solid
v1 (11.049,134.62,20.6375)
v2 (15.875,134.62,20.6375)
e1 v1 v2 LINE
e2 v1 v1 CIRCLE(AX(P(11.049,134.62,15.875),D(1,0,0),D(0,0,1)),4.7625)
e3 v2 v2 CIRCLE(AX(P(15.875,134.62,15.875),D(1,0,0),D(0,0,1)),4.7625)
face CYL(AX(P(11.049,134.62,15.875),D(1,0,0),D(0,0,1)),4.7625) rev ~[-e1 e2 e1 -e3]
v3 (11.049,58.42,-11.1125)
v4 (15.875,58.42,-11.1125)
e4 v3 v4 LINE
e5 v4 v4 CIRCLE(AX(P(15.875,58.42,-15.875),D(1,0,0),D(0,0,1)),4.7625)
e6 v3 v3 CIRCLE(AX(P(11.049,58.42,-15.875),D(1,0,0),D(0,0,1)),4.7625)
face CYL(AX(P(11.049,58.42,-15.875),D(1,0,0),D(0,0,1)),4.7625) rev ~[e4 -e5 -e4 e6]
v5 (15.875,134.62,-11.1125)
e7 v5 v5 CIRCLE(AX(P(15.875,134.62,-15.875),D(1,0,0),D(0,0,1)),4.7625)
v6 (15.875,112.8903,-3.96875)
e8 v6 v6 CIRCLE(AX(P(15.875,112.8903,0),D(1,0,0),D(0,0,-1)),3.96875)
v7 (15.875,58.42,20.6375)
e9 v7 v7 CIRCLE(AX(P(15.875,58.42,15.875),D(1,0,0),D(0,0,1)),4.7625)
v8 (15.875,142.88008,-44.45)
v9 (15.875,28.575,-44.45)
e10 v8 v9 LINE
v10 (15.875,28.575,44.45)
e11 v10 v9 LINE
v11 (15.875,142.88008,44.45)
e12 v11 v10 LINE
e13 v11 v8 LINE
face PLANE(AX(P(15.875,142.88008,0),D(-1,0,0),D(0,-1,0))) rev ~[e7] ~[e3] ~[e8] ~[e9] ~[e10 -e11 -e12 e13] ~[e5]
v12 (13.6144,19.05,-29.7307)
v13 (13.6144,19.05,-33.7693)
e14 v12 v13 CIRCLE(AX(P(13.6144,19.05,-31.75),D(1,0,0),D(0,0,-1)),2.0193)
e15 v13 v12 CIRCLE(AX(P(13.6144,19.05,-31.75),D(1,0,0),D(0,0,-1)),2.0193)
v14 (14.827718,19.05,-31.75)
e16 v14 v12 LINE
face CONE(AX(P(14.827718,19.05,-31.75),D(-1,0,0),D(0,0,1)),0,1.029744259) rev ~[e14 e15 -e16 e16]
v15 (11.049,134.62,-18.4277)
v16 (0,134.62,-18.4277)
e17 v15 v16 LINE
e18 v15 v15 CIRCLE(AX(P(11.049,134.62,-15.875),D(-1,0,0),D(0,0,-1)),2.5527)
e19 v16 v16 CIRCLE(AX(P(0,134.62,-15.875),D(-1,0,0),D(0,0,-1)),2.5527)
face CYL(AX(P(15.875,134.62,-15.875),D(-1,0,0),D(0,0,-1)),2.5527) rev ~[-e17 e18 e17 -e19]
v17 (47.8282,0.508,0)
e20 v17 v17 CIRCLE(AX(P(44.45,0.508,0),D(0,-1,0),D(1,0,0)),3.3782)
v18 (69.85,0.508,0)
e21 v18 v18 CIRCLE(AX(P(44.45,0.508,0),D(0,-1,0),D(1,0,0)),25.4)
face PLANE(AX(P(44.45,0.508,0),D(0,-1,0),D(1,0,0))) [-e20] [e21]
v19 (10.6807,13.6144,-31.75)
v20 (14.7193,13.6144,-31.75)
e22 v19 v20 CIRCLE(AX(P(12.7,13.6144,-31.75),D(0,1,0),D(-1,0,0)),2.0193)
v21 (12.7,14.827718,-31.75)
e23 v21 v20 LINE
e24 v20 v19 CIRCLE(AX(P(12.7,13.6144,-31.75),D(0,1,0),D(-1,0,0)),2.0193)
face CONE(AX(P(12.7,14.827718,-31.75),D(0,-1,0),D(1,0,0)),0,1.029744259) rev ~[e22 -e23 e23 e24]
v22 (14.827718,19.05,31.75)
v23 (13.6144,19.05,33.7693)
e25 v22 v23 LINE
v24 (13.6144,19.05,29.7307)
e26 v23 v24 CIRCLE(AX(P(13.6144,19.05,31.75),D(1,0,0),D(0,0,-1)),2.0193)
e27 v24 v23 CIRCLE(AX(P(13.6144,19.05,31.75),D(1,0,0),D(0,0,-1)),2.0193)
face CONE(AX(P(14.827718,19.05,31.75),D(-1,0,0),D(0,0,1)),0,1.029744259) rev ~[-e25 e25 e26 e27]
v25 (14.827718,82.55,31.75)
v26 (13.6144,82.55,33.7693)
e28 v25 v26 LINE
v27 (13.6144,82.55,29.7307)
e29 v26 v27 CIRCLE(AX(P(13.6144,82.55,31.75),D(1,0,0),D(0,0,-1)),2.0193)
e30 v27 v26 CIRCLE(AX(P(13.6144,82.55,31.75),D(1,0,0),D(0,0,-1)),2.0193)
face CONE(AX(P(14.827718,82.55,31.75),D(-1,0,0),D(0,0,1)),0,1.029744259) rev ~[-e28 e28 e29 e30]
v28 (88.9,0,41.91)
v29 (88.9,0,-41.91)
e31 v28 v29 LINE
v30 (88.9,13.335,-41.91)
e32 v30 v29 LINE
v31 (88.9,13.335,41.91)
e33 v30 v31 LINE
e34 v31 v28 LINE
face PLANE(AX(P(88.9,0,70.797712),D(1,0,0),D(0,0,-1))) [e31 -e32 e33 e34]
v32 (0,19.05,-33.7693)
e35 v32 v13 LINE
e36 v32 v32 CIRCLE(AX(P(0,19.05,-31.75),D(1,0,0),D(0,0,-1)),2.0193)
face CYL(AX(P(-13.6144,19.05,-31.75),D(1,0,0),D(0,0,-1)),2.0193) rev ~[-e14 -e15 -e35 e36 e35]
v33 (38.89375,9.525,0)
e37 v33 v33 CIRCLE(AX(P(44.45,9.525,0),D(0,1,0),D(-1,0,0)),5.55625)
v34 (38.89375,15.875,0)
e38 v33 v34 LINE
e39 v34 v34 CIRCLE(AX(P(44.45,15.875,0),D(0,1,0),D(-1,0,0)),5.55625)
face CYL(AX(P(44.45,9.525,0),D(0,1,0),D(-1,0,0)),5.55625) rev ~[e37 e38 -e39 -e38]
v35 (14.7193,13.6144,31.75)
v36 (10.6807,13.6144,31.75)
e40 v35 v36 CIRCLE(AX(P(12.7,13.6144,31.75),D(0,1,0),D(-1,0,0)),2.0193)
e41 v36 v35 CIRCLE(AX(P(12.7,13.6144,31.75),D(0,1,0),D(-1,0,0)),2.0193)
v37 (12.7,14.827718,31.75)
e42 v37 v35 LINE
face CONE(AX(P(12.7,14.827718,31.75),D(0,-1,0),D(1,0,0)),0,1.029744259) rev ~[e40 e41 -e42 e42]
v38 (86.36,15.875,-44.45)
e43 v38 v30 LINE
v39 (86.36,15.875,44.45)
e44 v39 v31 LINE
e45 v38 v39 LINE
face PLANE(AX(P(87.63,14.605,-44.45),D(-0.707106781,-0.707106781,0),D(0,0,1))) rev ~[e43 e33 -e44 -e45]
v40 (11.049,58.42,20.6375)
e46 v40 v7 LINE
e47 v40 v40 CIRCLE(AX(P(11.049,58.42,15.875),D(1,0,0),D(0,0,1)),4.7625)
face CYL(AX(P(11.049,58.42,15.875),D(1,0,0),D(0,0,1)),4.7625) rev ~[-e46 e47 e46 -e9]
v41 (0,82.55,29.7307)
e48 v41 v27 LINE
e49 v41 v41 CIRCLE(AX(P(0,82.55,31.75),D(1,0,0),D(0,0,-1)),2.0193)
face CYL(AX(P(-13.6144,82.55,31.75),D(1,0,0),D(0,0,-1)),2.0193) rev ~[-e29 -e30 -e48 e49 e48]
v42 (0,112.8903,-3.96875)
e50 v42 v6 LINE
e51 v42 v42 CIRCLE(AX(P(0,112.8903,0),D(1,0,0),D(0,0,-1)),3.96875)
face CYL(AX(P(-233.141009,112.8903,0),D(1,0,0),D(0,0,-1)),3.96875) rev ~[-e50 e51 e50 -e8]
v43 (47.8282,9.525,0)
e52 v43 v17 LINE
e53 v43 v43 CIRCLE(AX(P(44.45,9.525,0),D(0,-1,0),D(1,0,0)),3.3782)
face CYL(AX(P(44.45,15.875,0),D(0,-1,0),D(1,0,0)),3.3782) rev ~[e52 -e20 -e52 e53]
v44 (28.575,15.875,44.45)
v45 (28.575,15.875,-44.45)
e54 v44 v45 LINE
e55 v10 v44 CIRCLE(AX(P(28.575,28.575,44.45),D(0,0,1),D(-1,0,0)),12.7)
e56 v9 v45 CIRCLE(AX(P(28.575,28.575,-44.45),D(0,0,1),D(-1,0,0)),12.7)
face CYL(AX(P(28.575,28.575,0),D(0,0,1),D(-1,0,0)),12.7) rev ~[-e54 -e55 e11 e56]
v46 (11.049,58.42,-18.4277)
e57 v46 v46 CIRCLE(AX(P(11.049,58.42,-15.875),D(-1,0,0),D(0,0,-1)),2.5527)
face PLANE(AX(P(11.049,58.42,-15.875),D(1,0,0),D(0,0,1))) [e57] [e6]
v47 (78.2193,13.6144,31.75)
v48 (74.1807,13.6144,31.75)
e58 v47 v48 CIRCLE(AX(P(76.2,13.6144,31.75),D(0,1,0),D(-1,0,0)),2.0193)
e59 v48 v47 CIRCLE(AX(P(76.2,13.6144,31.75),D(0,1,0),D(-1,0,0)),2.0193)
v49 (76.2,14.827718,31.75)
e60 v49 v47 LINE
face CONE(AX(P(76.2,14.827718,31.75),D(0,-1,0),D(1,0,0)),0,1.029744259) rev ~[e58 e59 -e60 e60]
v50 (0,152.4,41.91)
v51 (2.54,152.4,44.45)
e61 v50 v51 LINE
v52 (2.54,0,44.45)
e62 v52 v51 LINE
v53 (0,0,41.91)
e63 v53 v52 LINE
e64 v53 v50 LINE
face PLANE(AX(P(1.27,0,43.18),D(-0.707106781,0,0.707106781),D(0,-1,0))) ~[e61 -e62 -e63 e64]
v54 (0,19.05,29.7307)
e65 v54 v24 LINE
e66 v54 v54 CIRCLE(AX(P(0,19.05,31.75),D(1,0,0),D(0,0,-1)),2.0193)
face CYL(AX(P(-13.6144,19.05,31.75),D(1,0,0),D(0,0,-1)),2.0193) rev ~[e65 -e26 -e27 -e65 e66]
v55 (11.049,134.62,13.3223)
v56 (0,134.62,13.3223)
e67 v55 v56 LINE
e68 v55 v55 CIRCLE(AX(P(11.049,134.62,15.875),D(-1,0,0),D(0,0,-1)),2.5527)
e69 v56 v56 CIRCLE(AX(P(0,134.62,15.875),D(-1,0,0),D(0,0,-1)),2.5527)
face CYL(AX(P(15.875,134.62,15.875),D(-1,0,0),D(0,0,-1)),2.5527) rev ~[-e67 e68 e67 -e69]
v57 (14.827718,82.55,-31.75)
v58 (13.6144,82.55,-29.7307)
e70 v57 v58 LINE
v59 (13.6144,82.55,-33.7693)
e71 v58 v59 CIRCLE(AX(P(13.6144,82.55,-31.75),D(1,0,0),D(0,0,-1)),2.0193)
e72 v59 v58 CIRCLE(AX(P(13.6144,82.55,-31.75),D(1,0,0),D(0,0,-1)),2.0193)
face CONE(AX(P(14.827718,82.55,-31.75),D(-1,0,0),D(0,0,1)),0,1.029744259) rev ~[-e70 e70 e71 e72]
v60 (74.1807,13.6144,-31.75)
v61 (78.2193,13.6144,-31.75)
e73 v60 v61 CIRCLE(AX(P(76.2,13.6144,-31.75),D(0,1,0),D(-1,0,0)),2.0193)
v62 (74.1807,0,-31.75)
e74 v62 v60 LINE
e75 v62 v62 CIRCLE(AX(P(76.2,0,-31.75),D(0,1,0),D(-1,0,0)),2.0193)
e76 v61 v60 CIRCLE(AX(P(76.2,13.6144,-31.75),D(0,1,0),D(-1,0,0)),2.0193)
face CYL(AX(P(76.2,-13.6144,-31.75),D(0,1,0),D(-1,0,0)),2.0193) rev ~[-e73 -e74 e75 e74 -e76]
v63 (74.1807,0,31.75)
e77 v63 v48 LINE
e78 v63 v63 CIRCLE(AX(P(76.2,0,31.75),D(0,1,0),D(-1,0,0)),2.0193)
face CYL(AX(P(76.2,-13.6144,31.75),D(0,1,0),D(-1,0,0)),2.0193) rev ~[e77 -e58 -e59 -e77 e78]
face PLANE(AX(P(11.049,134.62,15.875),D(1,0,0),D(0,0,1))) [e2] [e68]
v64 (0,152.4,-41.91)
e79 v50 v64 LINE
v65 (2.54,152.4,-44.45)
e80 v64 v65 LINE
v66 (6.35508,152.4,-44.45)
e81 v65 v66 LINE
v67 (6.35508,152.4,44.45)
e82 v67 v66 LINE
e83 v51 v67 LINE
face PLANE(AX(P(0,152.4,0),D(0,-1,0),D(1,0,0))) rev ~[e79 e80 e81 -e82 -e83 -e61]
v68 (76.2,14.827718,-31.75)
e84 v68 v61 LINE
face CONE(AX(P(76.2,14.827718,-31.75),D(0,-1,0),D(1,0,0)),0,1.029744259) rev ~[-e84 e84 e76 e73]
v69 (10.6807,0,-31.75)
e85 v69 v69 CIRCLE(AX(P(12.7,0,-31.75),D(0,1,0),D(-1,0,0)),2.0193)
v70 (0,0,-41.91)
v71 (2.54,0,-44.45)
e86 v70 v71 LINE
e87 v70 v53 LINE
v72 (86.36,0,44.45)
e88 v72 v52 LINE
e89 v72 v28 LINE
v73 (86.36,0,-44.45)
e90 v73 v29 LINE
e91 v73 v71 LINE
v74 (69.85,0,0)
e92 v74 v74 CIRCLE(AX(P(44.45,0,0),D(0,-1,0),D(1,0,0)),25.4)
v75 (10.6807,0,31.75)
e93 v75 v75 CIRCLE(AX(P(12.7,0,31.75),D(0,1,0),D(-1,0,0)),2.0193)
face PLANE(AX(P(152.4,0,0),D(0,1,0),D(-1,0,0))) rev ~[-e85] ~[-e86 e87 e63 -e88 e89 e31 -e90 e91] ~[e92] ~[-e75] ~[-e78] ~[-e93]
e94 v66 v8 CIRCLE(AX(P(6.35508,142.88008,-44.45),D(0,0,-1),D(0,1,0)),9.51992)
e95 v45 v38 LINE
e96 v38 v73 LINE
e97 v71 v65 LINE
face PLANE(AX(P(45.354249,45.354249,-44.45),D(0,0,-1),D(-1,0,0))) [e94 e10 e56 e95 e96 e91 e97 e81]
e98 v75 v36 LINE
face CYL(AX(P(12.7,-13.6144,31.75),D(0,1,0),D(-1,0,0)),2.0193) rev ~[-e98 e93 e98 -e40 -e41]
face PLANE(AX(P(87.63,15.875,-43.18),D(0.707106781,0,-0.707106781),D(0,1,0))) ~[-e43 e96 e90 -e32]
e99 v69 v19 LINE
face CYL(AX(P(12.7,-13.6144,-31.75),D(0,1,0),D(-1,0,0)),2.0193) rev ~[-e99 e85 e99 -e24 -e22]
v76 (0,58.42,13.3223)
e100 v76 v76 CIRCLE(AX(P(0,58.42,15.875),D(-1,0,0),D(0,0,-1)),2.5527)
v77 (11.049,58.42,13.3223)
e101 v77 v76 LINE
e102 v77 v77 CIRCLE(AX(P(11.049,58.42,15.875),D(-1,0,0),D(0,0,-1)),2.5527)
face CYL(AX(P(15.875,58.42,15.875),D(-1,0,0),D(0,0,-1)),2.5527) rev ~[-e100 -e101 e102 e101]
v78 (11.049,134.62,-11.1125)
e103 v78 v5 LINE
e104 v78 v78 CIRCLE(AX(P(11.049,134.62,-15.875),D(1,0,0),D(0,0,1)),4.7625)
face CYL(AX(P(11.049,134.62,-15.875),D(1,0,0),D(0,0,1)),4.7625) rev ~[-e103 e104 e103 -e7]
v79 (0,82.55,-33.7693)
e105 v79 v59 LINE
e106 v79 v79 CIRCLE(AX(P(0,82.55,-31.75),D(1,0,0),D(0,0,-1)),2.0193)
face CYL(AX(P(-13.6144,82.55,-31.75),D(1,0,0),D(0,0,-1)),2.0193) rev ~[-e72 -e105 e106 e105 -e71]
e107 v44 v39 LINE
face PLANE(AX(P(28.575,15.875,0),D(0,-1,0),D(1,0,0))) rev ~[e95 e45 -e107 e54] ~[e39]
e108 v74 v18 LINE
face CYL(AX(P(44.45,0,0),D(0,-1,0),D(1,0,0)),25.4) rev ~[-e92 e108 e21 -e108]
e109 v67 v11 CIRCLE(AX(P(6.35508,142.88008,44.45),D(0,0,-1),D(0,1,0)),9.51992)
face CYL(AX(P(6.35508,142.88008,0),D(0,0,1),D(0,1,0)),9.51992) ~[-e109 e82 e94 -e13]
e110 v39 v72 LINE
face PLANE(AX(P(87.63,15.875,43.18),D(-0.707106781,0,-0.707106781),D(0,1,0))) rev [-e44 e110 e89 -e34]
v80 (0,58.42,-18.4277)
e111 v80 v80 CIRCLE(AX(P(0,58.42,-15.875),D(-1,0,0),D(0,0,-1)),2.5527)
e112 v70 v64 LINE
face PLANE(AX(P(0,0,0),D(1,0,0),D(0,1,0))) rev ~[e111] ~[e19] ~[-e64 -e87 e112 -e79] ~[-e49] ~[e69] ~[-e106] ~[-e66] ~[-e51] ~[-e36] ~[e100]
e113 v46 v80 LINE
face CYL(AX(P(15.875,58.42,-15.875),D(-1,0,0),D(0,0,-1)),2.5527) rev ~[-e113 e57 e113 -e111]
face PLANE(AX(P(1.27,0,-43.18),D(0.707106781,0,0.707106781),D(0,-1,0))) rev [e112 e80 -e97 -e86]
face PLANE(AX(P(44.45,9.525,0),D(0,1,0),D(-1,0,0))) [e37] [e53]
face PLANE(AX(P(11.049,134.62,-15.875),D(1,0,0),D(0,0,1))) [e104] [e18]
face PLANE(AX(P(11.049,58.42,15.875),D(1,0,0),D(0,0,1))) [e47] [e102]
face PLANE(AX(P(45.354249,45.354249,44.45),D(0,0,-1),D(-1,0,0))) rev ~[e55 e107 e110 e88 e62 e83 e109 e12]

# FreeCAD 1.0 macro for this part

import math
import FreeCAD as App
import Part
import Sketcher
from FreeCAD import Vector
Q = App.Units.Quantity


def edges_at(feature, points):
    """Names of the edges that pass closest to the given points."""
    edges = feature.Shape.Edges
    near = lambda p: min(range(len(edges)), key=lambda i: edges[i].distToShape(Part.Vertex(*p))[0])
    return sorted({f"Edge{near(p) + 1}" for p in points})

doc = App.newDocument("Part")
body = doc.addObject("PartDesign::Body", "Body")

sketch1 = body.newObject("Sketcher::SketchObject", "Sketch")
sketch1.AttachmentSupport = (doc.getObject("XY_Plane"), [""])
sketch1.MapMode = "FlatFace"
sketch1.addGeometry([
    Part.LineSegment(Vector(0, 152.4, 0), Vector(0, 0, 0)),
    Part.LineSegment(Vector(0, 0, 0), Vector(152.4, 0, 0)),
    Part.LineSegment(Vector(152.4, 0, 0), Vector(152.4, 6.35508, 0)),
    Part.ArcOfCircle(Part.Circle(Vector(142.88008, 6.35508, 0), Vector(0, 0, 1), 9.51992), math.radians(0), math.radians(90)),
    Part.LineSegment(Vector(142.88008, 15.875, 0), Vector(28.575, 15.875, 0)),
    Part.ArcOfCircle(Part.Circle(Vector(28.575, 28.575, 0), Vector(0, 0, 1), 12.7), math.radians(180), math.radians(270)),
    Part.LineSegment(Vector(15.875, 28.575, 0), Vector(15.875, 142.88008, 0)),
    Part.ArcOfCircle(Part.Circle(Vector(6.35508, 142.88008, 0), Vector(0, 0, 1), 9.51992), math.radians(0), math.radians(90)),
    Part.LineSegment(Vector(6.35508, 152.4, 0), Vector(0, 152.4, 0)),
], False)
sketch1.addConstraint([
    Sketcher.Constraint("Coincident", 0, 2, 1, 1),
    Sketcher.Constraint("Coincident", 1, 2, 2, 1),
    Sketcher.Constraint("Tangent", 2, 2, 3, 1),
    Sketcher.Constraint("Tangent", 3, 2, 4, 1),
    Sketcher.Constraint("Tangent", 4, 2, 5, 2),
    Sketcher.Constraint("Tangent", 5, 1, 6, 1),
    Sketcher.Constraint("Tangent", 6, 2, 7, 1),
    Sketcher.Constraint("Tangent", 7, 2, 8, 1),
    Sketcher.Constraint("Coincident", 8, 2, 0, 1),
    Sketcher.Constraint("Vertical", 0),
    Sketcher.Constraint("Horizontal", 1),
    Sketcher.Constraint("Vertical", 2),
    Sketcher.Constraint("Horizontal", 4),
    Sketcher.Constraint("Vertical", 6),
    Sketcher.Constraint("Horizontal", 8),
    Sketcher.Constraint("Coincident", 0, 2, -1, 1),
    Sketcher.Constraint("Equal", 3, 7),
    Sketcher.Constraint("Equal", 1, 0),
    Sketcher.Constraint("Equal", 8, 2),
    Sketcher.Constraint("Radius", 5, Q("0.5 in")),
    Sketcher.Constraint("DistanceX", 1, 1, 1, 2, Q("6 in")),
    Sketcher.Constraint("Radius", 3, Q("0.3748 in")),
    Sketcher.Constraint("DistanceX", 4, 2, 4, 1, Q("4.5002 in")),
])
pad1 = body.newObject("PartDesign::Pad", "Pad")
pad1.Profile = sketch1
pad1.Length = Q("3.5 in")
pad1.Midplane = True

sketch2 = body.newObject("Sketcher::SketchObject", "Sketch001")
sketch2.AttachmentSupport = (doc.getObject("YZ_Plane"), [""])
sketch2.MapMode = "FlatFace"
sketch2.addGeometry(Part.Circle(Vector(112.8903, 0, 0), Vector(0, 0, 1), 3.96875), False)
sketch2.addConstraint([
    Sketcher.Constraint("PointOnObject", 0, 3, -1),
    Sketcher.Constraint("Diameter", 0, Q("0.3125 in")),
    Sketcher.Constraint("DistanceX", -1, 1, 0, 3, Q("4.4445 in")),
])
doc.recompute()
hole = body.newObject("PartDesign::Hole", "Hole")
hole.Profile = sketch2
hole.ThreadType = "None"
hole.Diameter = Q("0.3125 in")
hole.DepthType = "ThroughAll"
hole.Reversed = True

sketch3 = body.newObject("Sketcher::SketchObject", "Sketch002")
sketch3.AttachmentSupport = (doc.getObject("YZ_Plane"), [""])
sketch3.MapMode = "FlatFace"
sketch3.AttachmentOffset = App.Placement(Vector(0, 0, 0.625 * 25.4), App.Rotation())
sketch3.addGeometry([
    Part.Circle(Vector(58.42, -15.875, 0), Vector(0, 0, 1), 2.5527),
    Part.Circle(Vector(58.42, 15.875, 0), Vector(0, 0, 1), 2.5527),
    Part.Circle(Vector(134.62, 15.875, 0), Vector(0, 0, 1), 2.5527),
    Part.Circle(Vector(134.62, -15.875, 0), Vector(0, 0, 1), 2.5527),
], False)
sketch3.addConstraint([
    Sketcher.Constraint("Equal", 0, 1),
    Sketcher.Constraint("Equal", 1, 2),
    Sketcher.Constraint("Equal", 2, 3),
    Sketcher.Constraint("Symmetric", 0, 3, 1, 3, -1),
    Sketcher.Constraint("Symmetric", 2, 3, 3, 3, -1),
    Sketcher.Constraint("Horizontal", 1, 3, 2, 3),
    Sketcher.Constraint("Diameter", 0, Q("0.201 in")),
    Sketcher.Constraint("DistanceX", 1, 3, 2, 3, Q("3 in")),
    Sketcher.Constraint("DistanceX", -1, 1, 0, 3, Q("2.3 in")),
    Sketcher.Constraint("DistanceY", 0, 3, 1, 3, Q("1.25 in")),
])
doc.recompute()
hole2 = body.newObject("PartDesign::Hole", "Hole001")
hole2.Profile = sketch3
hole2.ThreadType = "None"
hole2.Diameter = Q("0.201 in")
hole2.DepthType = "ThroughAll"
hole2.HoleCutType = "Counterbore"
hole2.HoleCutDiameter = Q("0.375 in")
hole2.HoleCutDepth = Q("0.19 in")

sketch4 = body.newObject("Sketcher::SketchObject", "Sketch003")
sketch4.AttachmentSupport = (doc.getObject("XZ_Plane"), [""])
sketch4.MapMode = "FlatFace"
sketch4.addGeometry([
    Part.LineSegment(Vector(88.9, -73.703588, 0), Vector(88.9, 70.797712, 0)),
    Part.LineSegment(Vector(88.9, 70.797712, 0), Vector(183.208892, 70.797712, 0)),
    Part.LineSegment(Vector(183.208892, 70.797712, 0), Vector(183.208892, -73.703588, 0)),
    Part.LineSegment(Vector(183.208892, -73.703588, 0), Vector(88.9, -73.703588, 0)),
], False)
sketch4.addConstraint([
    Sketcher.Constraint("Coincident", 0, 2, 1, 1),
    Sketcher.Constraint("Coincident", 1, 2, 2, 1),
    Sketcher.Constraint("Coincident", 2, 2, 3, 1),
    Sketcher.Constraint("Coincident", 3, 2, 0, 1),
    Sketcher.Constraint("Vertical", 0),
    Sketcher.Constraint("Horizontal", 1),
    Sketcher.Constraint("Vertical", 2),
    Sketcher.Constraint("Horizontal", 3),
    Sketcher.Constraint("DistanceX", -1, 1, 0, 2, Q("3.5 in")),
    Sketcher.Constraint("DistanceY", 0, 1, 0, 2, 144.5013),
    Sketcher.Constraint("DistanceX", 1, 1, 1, 2, 94.308892),
    Sketcher.Constraint("DistanceY", -1, 1, 0, 2, 70.797712),
])
pocket1 = body.newObject("PartDesign::Pocket", "Pocket")
pocket1.Profile = sketch4
pocket1.Length = Q("2 in")
pocket1.Midplane = True

sketch5 = body.newObject("Sketcher::SketchObject", "Sketch004")
sketch5.AttachmentSupport = (doc.getObject("YZ_Plane"), [""])
sketch5.MapMode = "FlatFace"
sketch5.addGeometry([
    Part.Circle(Vector(82.55, -31.75, 0), Vector(0, 0, 1), 2.0193),
    Part.Circle(Vector(82.55, 31.75, 0), Vector(0, 0, 1), 2.0193),
    Part.Circle(Vector(19.05, 31.75, 0), Vector(0, 0, 1), 2.0193),
    Part.Circle(Vector(19.05, -31.75, 0), Vector(0, 0, 1), 2.0193),
], False)
sketch5.addConstraint([
    Sketcher.Constraint("Equal", 0, 1),
    Sketcher.Constraint("Equal", 1, 2),
    Sketcher.Constraint("Equal", 2, 3),
    Sketcher.Constraint("Symmetric", 0, 3, 1, 3, -1),
    Sketcher.Constraint("Symmetric", 2, 3, 3, 3, -1),
    Sketcher.Constraint("Horizontal", 1, 3, 2, 3),
    Sketcher.Constraint("Diameter", 0, Q("0.159 in")),
    Sketcher.Constraint("DistanceY", 0, 3, 1, 3, Q("2.5 in")),
    Sketcher.Constraint("DistanceX", 2, 3, 1, 3, Q("2.5 in")),
    Sketcher.Constraint("DistanceX", -1, 1, 0, 3, Q("3.25 in")),
])
doc.recompute()
hole3 = body.newObject("PartDesign::Hole", "Hole002")
hole3.Profile = sketch5
hole3.ThreadType = "None"
hole3.Diameter = Q("0.159 in")
hole3.DepthType = "Dimension"
hole3.Depth = Q("0.536 in")
hole3.DrillPoint = "Angled"
hole3.DrillPointAngle = 118
hole3.Reversed = True

sketch6 = body.newObject("Sketcher::SketchObject", "Sketch005")
sketch6.AttachmentSupport = (doc.getObject("XZ_Plane"), [""])
sketch6.MapMode = "FlatFace"
sketch6.addGeometry([
    Part.Circle(Vector(76.2, 31.75, 0), Vector(0, 0, 1), 2.0193),
    Part.Circle(Vector(12.7, 31.75, 0), Vector(0, 0, 1), 2.0193),
    Part.Circle(Vector(12.7, -31.75, 0), Vector(0, 0, 1), 2.0193),
    Part.Circle(Vector(76.2, -31.75, 0), Vector(0, 0, 1), 2.0193),
], False)
sketch6.addConstraint([
    Sketcher.Constraint("Equal", 0, 1),
    Sketcher.Constraint("Equal", 1, 2),
    Sketcher.Constraint("Equal", 2, 3),
    Sketcher.Constraint("Symmetric", 1, 3, 2, 3, -1),
    Sketcher.Constraint("Symmetric", 0, 3, 3, 3, -1),
    Sketcher.Constraint("Horizontal", 0, 3, 1, 3),
    Sketcher.Constraint("Diameter", 0, Q("0.159 in")),
    Sketcher.Constraint("DistanceX", -1, 1, 0, 3, Q("3 in")),
    Sketcher.Constraint("DistanceX", -1, 1, 1, 3, Q("0.5 in")),
    Sketcher.Constraint("DistanceY", 2, 3, 1, 3, Q("2.5 in")),
])
doc.recompute()
hole4 = body.newObject("PartDesign::Hole", "Hole003")
hole4.Profile = sketch6
hole4.ThreadType = "None"
hole4.Diameter = Q("0.159 in")
hole4.DepthType = "Dimension"
hole4.Depth = Q("0.536 in")
hole4.DrillPoint = "Angled"
hole4.DrillPointAngle = 118

sketch7 = body.newObject("Sketcher::SketchObject", "Sketch006")
sketch7.AttachmentSupport = (doc.getObject("XZ_Plane"), [""])
sketch7.MapMode = "FlatFace"
sketch7.AttachmentOffset = App.Placement(Vector(0, 0, -0.625 * 25.4), App.Rotation())
sketch7.addGeometry(Part.Circle(Vector(44.45, 0, 0), Vector(0, 0, 1), 3.3782), False)
sketch7.addConstraint([
    Sketcher.Constraint("PointOnObject", 0, 3, -1),
    Sketcher.Constraint("Diameter", 0, Q("0.266 in")),
    Sketcher.Constraint("DistanceX", -1, 1, 0, 3, Q("1.75 in")),
])
doc.recompute()
hole5 = body.newObject("PartDesign::Hole", "Hole004")
hole5.Profile = sketch7
hole5.ThreadType = "None"
hole5.Diameter = Q("0.266 in")
hole5.DepthType = "ThroughAll"
hole5.HoleCutType = "Counterbore"
hole5.HoleCutDiameter = Q("0.4375 in")
hole5.HoleCutDepth = Q("0.25 in")
hole5.Reversed = True

sketch8 = body.newObject("Sketcher::SketchObject", "Sketch007")
sketch8.AttachmentSupport = (doc.getObject("XZ_Plane"), [""])
sketch8.MapMode = "FlatFace"
sketch8.addGeometry(Part.Circle(Vector(44.45, 0, 0), Vector(0, 0, 1), 25.4), False)
sketch8.addConstraint([
    Sketcher.Constraint("PointOnObject", 0, 3, -1),
    Sketcher.Constraint("Diameter", 0, Q("2 in")),
    Sketcher.Constraint("DistanceX", -1, 1, 0, 3, Q("1.75 in")),
])
pocket2 = body.newObject("PartDesign::Pocket", "Pocket001")
pocket2.Profile = sketch8
pocket2.Length = Q("0.02 in")
doc.recompute()

chamfer = body.newObject("PartDesign::Chamfer", "Chamfer")
chamfer.Base = (pocket2, edges_at(pocket2, [
    (0, 76.2, 44.45),
    (88.9, 7.938, -44.45),
    (88.9, 7.938, 44.45),
    (88.9, 15.875, 0),
    (0, 76.2, -44.45),
]))
chamfer.Size = Q("0.1 in")

doc.recompute()
